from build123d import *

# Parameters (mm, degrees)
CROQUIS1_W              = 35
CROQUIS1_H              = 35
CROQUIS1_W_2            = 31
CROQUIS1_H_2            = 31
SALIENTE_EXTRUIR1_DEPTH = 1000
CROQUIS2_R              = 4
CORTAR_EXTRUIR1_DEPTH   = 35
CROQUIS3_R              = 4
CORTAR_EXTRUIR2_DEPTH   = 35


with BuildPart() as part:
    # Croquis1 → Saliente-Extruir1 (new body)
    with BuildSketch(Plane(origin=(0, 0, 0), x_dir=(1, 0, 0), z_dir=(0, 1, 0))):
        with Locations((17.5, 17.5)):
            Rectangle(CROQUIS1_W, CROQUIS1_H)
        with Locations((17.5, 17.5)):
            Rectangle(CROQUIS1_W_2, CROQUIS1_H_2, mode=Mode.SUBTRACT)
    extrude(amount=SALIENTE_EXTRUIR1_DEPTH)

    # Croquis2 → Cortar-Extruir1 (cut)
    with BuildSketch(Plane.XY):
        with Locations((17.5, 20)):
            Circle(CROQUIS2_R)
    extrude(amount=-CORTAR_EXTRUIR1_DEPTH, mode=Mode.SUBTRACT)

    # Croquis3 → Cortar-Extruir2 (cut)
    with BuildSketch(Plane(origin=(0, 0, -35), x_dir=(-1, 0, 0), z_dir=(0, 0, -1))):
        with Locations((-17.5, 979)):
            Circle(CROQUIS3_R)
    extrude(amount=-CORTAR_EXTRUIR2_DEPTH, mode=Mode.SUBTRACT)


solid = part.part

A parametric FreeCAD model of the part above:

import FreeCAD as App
import Part
import Sketcher
from FreeCAD import Vector

doc = App.newDocument("Part")
params = doc.addObject("Spreadsheet::Sheet", "Params")
for row, (alias, value) in enumerate([
    ("sketch1_width", "35 mm"),
    ("sketch1_width2", "31 mm"),
    ("pad1_length", "1000 mm"),
    ("sketch2_diameter", "8 mm"),
    ("pocket1_length", "35 mm"),
    ("sketch3_diameter", "8 mm"),
    ("pocket2_length", "35 mm"),
], start=1):
    params.set(f"A{row}", alias)
    params.set(f"B{row}", "=" + value)
    params.setAlias(f"B{row}", alias)

body = doc.addObject("PartDesign::Body", "Body")

# Sketch on XZ plane
sketch1 = doc.addObject("Sketcher::SketchObject", "Sketch")
body.addObject(sketch1)
sketch1.AttachmentSupport = (doc.XZ_Plane, [""])
sketch1.MapMode = "FlatFace"
sketch1.addGeometry([
    Part.LineSegment(Vector(0, -35, 0), Vector(0, 0, 0)),  # 0
    Part.LineSegment(Vector(0, 0, 0), Vector(35, 0, 0)),  # 1
    Part.LineSegment(Vector(35, 0, 0), Vector(35, -35, 0)),  # 2
    Part.LineSegment(Vector(35, -35, 0), Vector(0, -35, 0)),  # 3
    Part.LineSegment(Vector(33, -2, 0), Vector(2, -2, 0)),  # 4
    Part.LineSegment(Vector(2, -2, 0), Vector(2, -33, 0)),  # 5
    Part.LineSegment(Vector(2, -33, 0), Vector(33, -33, 0)),  # 6
    Part.LineSegment(Vector(33, -33, 0), Vector(33, -2, 0)),  # 7
], False)
sketch1.addConstraint([
    Sketcher.Constraint("Coincident", 0, 2, 1, 1),
    Sketcher.Constraint("Coincident", 1, 2, 2, 1),
    Sketcher.Constraint("Coincident", 2, 2, 3, 1),
    Sketcher.Constraint("Coincident", 3, 2, 0, 1),
    Sketcher.Constraint("Coincident", 4, 2, 5, 1),
    Sketcher.Constraint("Coincident", 5, 2, 6, 1),
    Sketcher.Constraint("Coincident", 6, 2, 7, 1),
    Sketcher.Constraint("Coincident", 7, 2, 4, 1),
    Sketcher.Constraint("Vertical", 0),
    Sketcher.Constraint("Horizontal", 1),
    Sketcher.Constraint("Vertical", 2),
    Sketcher.Constraint("Horizontal", 3),
    Sketcher.Constraint("Horizontal", 4),
    Sketcher.Constraint("Vertical", 5),
    Sketcher.Constraint("Horizontal", 6),
    Sketcher.Constraint("Vertical", 7),
    Sketcher.Constraint("Coincident", 0, 2, -1, 1),
    Sketcher.Constraint("Equal", 3, 0),
    Sketcher.Constraint("Equal", 6, 5),
    Sketcher.Constraint("DistanceX", 1, 1, 1, 2, 35.0),
    Sketcher.Constraint("DistanceX", 4, 2, 4, 1, 31.0),
    Sketcher.Constraint("DistanceX", -1, 1, 4, 2, 2.0),
    Sketcher.Constraint("DistanceY", 4, 2, -1, 1, 2.0),
])
sketch1.setExpression("Constraints[19]", "Params.sketch1_width")
sketch1.setExpression("Constraints[20]", "Params.sketch1_width2")
pad1 = doc.addObject("PartDesign::Pad", "Pad")
body.addObject(pad1)
pad1.Profile = sketch1
pad1.setExpression("Length", "Params.pad1_length")
pad1.Reversed = True

# Sketch on XY plane
sketch2 = doc.addObject("Sketcher::SketchObject", "Sketch001")
body.addObject(sketch2)
sketch2.AttachmentSupport = (doc.XY_Plane, [""])
sketch2.MapMode = "FlatFace"
sketch2.addGeometry(Part.Circle(Vector(17.5, 20, 0), Vector(0, 0, 1), 4), False)
sketch2.addConstraint([
    Sketcher.Constraint("Diameter", 0, 8.0),
    Sketcher.Constraint("DistanceY", -1, 1, 0, 3, 20.0),
    Sketcher.Constraint("DistanceX", -1, 1, 0, 3, 17.5),
])
sketch2.setExpression("Constraints[0]", "Params.sketch2_diameter")
pocket1 = doc.addObject("PartDesign::Pocket", "Pocket")
body.addObject(pocket1)
pocket1.Profile = sketch2
pocket1.setExpression("Length", "Params.pocket1_length")

# Sketch on XY plane
sketch3 = doc.addObject("Sketcher::SketchObject", "Sketch002")
body.addObject(sketch3)
sketch3.AttachmentSupport = (doc.XY_Plane, [""])
sketch3.MapMode = "FlatFace"
sketch3.AttachmentOffset = App.Placement(Vector(0, 0, -35), App.Rotation())
sketch3.addGeometry(Part.Circle(Vector(17.5, 979, 0), Vector(0, 0, 1), 4), False)
sketch3.addConstraint([
    Sketcher.Constraint("Diameter", 0, 8.0),
    Sketcher.Constraint("DistanceY", -1, 1, 0, 3, 979.0),
    Sketcher.Constraint("DistanceX", -1, 1, 0, 3, 17.5),
])
sketch3.setExpression("Constraints[0]", "Params.sketch3_diameter")
pocket2 = doc.addObject("PartDesign::Pocket", "Pocket001")
body.addObject(pocket2)
pocket2.Profile = sketch3
pocket2.setExpression("Length", "Params.pocket2_length")
pocket2.Reversed = True

doc.recompute()
